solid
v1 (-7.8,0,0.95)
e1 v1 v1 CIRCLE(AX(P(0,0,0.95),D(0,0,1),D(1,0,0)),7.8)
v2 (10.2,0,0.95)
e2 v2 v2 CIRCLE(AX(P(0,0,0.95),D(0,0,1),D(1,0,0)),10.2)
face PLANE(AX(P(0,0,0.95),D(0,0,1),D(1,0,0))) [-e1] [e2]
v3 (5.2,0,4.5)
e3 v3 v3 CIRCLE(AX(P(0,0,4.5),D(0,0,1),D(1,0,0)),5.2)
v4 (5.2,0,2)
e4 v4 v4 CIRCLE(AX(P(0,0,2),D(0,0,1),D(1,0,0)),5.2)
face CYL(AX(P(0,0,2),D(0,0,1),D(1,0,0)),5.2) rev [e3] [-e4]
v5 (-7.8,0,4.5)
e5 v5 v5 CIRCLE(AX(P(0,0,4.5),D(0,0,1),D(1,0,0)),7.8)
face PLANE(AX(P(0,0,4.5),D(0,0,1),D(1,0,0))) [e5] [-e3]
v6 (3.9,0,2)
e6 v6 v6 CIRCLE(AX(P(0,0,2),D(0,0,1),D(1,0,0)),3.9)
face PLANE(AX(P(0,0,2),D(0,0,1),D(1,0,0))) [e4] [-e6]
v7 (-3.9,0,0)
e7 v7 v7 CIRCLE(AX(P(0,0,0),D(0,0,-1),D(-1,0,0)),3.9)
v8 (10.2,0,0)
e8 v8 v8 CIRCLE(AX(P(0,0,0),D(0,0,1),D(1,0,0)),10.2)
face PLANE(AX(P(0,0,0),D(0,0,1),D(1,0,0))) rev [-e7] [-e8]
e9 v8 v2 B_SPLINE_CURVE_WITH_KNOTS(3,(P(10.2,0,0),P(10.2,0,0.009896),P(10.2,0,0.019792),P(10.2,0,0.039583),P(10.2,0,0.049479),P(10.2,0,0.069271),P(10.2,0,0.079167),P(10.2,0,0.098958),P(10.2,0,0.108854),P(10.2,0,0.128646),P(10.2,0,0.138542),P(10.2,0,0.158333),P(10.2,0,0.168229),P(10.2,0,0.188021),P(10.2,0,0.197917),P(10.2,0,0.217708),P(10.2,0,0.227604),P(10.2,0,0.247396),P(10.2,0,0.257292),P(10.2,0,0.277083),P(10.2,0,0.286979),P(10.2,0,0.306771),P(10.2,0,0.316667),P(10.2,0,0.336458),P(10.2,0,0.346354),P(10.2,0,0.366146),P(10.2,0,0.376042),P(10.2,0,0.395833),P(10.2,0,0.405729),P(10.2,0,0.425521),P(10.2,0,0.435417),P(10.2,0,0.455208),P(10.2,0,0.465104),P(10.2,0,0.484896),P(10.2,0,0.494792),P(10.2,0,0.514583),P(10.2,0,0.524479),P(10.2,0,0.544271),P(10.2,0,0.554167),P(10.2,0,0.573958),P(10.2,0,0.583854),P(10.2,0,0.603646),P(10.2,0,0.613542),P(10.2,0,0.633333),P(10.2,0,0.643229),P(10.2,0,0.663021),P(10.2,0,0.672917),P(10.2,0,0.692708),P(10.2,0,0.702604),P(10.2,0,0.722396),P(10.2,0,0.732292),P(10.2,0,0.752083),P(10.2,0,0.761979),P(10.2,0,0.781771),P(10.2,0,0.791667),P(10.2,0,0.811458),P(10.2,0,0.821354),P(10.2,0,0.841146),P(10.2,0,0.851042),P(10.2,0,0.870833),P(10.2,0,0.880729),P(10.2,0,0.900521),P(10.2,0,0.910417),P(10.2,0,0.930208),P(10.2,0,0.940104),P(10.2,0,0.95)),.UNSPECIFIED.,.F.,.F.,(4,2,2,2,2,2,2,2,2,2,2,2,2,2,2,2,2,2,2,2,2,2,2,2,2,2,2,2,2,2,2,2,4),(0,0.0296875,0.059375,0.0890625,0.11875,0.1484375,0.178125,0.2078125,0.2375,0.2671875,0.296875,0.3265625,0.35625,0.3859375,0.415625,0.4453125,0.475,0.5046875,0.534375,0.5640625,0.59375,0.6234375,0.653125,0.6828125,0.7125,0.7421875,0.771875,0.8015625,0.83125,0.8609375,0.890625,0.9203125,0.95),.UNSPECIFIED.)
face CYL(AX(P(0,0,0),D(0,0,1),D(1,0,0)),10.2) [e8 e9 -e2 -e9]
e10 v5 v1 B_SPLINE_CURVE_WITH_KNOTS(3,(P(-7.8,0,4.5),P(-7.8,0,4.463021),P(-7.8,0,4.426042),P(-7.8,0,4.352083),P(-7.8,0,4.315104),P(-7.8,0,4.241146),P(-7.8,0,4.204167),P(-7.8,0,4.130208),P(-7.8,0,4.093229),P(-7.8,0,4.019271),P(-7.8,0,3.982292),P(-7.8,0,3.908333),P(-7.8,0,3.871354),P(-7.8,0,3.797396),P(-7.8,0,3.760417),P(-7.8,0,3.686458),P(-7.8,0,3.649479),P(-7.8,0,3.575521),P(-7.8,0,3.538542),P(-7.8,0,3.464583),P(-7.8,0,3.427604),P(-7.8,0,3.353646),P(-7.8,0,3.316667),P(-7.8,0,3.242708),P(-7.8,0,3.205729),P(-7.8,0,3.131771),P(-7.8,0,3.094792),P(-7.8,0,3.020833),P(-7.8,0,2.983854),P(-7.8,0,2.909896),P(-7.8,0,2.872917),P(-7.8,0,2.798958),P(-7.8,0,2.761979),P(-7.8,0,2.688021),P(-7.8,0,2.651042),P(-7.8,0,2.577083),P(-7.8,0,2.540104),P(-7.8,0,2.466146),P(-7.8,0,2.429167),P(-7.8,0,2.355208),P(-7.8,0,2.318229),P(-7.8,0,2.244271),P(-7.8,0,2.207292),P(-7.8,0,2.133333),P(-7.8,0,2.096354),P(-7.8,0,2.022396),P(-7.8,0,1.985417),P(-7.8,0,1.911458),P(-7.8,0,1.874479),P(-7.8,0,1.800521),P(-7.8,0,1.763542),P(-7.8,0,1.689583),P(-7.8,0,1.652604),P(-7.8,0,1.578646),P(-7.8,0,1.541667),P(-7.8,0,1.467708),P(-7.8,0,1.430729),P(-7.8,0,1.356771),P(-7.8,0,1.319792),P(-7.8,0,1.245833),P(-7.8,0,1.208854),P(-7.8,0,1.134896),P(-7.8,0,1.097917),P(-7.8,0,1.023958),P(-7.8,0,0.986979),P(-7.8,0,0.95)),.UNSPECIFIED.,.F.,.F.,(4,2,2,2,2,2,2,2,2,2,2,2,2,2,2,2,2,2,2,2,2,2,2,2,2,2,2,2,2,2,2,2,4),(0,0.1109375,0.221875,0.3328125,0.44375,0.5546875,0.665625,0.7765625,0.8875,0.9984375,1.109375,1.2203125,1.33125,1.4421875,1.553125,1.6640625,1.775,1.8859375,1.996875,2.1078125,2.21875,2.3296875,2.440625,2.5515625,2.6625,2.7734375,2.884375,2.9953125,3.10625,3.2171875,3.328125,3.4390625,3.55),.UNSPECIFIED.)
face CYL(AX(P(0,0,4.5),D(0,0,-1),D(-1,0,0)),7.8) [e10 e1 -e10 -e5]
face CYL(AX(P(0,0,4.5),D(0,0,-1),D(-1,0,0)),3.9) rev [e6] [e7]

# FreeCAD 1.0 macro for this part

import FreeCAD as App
import Part
import Sketcher
from FreeCAD import Vector

doc = App.newDocument("Part")
body = doc.addObject("PartDesign::Body", "Body")

# Sketch on XY plane
sketch1 = body.newObject("Sketcher::SketchObject", "Sketch")
sketch1.AttachmentSupport = (doc.getObject("XY_Plane"), [""])
sketch1.MapMode = "FlatFace"
sketch1.AttachmentOffset = App.Placement(Vector(0, 0, 0.95), App.Rotation())
sketch1.addGeometry(Part.Circle(Vector(0, 0, 0), Vector(0, 0, 1), 10), False)
sketch1.addConstraint([
    Sketcher.Constraint("Coincident", 0, 3, -1, 1),
    Sketcher.Constraint("Diameter", 0, 20.4),
])
pad1 = body.newObject("PartDesign::Pad", "Pad")
pad1.Profile = sketch1
pad1.Length = 0.95
pad1.Reversed = True

# Sketch on XY plane
sketch2 = body.newObject("Sketcher::SketchObject", "Sketch001")
sketch2.AttachmentSupport = (doc.getObject("XY_Plane"), [""])
sketch2.MapMode = "FlatFace"
sketch2.AttachmentOffset = App.Placement(Vector(0, 0, 0.95), App.Rotation())
sketch2.addGeometry(Part.Circle(Vector(0, 0, 0), Vector(0, 0, 1), 8), False)
sketch2.addConstraint([
    Sketcher.Constraint("Coincident", 0, 3, -1, 1),
    Sketcher.Constraint("Diameter", 0, 15.6),
])
pad2 = body.newObject("PartDesign::Pad", "Pad001")
pad2.Profile = sketch2
pad2.Length = 3.55

# Sketch on XY plane
sketch3 = body.newObject("Sketcher::SketchObject", "Sketch002")
sketch3.AttachmentSupport = (doc.getObject("XY_Plane"), [""])
sketch3.MapMode = "FlatFace"
sketch3.AttachmentOffset = App.Placement(Vector(0, 0, 4.5), App.Rotation())
sketch3.addGeometry(Part.Circle(Vector(0, 0, 0), Vector(0, 0, 1), 5), False)
sketch3.addConstraint([
    Sketcher.Constraint("Coincident", 0, 3, -1, 1),
    Sketcher.Constraint("Diameter", 0, 10.4),
])
pocket1 = body.newObject("PartDesign::Pocket", "Pocket")
pocket1.Profile = sketch3
pocket1.Length = 2.5

# Sketch on XY plane
sketch4 = body.newObject("Sketcher::SketchObject", "Sketch003")
sketch4.AttachmentSupport = (doc.getObject("XY_Plane"), [""])
sketch4.MapMode = "FlatFace"
sketch4.addGeometry(Part.Circle(Vector(0, 0, 0), Vector(0, 0, 1), 3.9), False)
sketch4.addConstraint([
    Sketcher.Constraint("Coincident", 0, 3, -1, 1),
    Sketcher.Constraint("Diameter", 0, 7.8),
])
pocket2 = body.newObject("PartDesign::Pocket", "Pocket001")
pocket2.Profile = sketch4
pocket2.Type = "ThroughAll"
pocket2.Reversed = True

doc.recompute()
